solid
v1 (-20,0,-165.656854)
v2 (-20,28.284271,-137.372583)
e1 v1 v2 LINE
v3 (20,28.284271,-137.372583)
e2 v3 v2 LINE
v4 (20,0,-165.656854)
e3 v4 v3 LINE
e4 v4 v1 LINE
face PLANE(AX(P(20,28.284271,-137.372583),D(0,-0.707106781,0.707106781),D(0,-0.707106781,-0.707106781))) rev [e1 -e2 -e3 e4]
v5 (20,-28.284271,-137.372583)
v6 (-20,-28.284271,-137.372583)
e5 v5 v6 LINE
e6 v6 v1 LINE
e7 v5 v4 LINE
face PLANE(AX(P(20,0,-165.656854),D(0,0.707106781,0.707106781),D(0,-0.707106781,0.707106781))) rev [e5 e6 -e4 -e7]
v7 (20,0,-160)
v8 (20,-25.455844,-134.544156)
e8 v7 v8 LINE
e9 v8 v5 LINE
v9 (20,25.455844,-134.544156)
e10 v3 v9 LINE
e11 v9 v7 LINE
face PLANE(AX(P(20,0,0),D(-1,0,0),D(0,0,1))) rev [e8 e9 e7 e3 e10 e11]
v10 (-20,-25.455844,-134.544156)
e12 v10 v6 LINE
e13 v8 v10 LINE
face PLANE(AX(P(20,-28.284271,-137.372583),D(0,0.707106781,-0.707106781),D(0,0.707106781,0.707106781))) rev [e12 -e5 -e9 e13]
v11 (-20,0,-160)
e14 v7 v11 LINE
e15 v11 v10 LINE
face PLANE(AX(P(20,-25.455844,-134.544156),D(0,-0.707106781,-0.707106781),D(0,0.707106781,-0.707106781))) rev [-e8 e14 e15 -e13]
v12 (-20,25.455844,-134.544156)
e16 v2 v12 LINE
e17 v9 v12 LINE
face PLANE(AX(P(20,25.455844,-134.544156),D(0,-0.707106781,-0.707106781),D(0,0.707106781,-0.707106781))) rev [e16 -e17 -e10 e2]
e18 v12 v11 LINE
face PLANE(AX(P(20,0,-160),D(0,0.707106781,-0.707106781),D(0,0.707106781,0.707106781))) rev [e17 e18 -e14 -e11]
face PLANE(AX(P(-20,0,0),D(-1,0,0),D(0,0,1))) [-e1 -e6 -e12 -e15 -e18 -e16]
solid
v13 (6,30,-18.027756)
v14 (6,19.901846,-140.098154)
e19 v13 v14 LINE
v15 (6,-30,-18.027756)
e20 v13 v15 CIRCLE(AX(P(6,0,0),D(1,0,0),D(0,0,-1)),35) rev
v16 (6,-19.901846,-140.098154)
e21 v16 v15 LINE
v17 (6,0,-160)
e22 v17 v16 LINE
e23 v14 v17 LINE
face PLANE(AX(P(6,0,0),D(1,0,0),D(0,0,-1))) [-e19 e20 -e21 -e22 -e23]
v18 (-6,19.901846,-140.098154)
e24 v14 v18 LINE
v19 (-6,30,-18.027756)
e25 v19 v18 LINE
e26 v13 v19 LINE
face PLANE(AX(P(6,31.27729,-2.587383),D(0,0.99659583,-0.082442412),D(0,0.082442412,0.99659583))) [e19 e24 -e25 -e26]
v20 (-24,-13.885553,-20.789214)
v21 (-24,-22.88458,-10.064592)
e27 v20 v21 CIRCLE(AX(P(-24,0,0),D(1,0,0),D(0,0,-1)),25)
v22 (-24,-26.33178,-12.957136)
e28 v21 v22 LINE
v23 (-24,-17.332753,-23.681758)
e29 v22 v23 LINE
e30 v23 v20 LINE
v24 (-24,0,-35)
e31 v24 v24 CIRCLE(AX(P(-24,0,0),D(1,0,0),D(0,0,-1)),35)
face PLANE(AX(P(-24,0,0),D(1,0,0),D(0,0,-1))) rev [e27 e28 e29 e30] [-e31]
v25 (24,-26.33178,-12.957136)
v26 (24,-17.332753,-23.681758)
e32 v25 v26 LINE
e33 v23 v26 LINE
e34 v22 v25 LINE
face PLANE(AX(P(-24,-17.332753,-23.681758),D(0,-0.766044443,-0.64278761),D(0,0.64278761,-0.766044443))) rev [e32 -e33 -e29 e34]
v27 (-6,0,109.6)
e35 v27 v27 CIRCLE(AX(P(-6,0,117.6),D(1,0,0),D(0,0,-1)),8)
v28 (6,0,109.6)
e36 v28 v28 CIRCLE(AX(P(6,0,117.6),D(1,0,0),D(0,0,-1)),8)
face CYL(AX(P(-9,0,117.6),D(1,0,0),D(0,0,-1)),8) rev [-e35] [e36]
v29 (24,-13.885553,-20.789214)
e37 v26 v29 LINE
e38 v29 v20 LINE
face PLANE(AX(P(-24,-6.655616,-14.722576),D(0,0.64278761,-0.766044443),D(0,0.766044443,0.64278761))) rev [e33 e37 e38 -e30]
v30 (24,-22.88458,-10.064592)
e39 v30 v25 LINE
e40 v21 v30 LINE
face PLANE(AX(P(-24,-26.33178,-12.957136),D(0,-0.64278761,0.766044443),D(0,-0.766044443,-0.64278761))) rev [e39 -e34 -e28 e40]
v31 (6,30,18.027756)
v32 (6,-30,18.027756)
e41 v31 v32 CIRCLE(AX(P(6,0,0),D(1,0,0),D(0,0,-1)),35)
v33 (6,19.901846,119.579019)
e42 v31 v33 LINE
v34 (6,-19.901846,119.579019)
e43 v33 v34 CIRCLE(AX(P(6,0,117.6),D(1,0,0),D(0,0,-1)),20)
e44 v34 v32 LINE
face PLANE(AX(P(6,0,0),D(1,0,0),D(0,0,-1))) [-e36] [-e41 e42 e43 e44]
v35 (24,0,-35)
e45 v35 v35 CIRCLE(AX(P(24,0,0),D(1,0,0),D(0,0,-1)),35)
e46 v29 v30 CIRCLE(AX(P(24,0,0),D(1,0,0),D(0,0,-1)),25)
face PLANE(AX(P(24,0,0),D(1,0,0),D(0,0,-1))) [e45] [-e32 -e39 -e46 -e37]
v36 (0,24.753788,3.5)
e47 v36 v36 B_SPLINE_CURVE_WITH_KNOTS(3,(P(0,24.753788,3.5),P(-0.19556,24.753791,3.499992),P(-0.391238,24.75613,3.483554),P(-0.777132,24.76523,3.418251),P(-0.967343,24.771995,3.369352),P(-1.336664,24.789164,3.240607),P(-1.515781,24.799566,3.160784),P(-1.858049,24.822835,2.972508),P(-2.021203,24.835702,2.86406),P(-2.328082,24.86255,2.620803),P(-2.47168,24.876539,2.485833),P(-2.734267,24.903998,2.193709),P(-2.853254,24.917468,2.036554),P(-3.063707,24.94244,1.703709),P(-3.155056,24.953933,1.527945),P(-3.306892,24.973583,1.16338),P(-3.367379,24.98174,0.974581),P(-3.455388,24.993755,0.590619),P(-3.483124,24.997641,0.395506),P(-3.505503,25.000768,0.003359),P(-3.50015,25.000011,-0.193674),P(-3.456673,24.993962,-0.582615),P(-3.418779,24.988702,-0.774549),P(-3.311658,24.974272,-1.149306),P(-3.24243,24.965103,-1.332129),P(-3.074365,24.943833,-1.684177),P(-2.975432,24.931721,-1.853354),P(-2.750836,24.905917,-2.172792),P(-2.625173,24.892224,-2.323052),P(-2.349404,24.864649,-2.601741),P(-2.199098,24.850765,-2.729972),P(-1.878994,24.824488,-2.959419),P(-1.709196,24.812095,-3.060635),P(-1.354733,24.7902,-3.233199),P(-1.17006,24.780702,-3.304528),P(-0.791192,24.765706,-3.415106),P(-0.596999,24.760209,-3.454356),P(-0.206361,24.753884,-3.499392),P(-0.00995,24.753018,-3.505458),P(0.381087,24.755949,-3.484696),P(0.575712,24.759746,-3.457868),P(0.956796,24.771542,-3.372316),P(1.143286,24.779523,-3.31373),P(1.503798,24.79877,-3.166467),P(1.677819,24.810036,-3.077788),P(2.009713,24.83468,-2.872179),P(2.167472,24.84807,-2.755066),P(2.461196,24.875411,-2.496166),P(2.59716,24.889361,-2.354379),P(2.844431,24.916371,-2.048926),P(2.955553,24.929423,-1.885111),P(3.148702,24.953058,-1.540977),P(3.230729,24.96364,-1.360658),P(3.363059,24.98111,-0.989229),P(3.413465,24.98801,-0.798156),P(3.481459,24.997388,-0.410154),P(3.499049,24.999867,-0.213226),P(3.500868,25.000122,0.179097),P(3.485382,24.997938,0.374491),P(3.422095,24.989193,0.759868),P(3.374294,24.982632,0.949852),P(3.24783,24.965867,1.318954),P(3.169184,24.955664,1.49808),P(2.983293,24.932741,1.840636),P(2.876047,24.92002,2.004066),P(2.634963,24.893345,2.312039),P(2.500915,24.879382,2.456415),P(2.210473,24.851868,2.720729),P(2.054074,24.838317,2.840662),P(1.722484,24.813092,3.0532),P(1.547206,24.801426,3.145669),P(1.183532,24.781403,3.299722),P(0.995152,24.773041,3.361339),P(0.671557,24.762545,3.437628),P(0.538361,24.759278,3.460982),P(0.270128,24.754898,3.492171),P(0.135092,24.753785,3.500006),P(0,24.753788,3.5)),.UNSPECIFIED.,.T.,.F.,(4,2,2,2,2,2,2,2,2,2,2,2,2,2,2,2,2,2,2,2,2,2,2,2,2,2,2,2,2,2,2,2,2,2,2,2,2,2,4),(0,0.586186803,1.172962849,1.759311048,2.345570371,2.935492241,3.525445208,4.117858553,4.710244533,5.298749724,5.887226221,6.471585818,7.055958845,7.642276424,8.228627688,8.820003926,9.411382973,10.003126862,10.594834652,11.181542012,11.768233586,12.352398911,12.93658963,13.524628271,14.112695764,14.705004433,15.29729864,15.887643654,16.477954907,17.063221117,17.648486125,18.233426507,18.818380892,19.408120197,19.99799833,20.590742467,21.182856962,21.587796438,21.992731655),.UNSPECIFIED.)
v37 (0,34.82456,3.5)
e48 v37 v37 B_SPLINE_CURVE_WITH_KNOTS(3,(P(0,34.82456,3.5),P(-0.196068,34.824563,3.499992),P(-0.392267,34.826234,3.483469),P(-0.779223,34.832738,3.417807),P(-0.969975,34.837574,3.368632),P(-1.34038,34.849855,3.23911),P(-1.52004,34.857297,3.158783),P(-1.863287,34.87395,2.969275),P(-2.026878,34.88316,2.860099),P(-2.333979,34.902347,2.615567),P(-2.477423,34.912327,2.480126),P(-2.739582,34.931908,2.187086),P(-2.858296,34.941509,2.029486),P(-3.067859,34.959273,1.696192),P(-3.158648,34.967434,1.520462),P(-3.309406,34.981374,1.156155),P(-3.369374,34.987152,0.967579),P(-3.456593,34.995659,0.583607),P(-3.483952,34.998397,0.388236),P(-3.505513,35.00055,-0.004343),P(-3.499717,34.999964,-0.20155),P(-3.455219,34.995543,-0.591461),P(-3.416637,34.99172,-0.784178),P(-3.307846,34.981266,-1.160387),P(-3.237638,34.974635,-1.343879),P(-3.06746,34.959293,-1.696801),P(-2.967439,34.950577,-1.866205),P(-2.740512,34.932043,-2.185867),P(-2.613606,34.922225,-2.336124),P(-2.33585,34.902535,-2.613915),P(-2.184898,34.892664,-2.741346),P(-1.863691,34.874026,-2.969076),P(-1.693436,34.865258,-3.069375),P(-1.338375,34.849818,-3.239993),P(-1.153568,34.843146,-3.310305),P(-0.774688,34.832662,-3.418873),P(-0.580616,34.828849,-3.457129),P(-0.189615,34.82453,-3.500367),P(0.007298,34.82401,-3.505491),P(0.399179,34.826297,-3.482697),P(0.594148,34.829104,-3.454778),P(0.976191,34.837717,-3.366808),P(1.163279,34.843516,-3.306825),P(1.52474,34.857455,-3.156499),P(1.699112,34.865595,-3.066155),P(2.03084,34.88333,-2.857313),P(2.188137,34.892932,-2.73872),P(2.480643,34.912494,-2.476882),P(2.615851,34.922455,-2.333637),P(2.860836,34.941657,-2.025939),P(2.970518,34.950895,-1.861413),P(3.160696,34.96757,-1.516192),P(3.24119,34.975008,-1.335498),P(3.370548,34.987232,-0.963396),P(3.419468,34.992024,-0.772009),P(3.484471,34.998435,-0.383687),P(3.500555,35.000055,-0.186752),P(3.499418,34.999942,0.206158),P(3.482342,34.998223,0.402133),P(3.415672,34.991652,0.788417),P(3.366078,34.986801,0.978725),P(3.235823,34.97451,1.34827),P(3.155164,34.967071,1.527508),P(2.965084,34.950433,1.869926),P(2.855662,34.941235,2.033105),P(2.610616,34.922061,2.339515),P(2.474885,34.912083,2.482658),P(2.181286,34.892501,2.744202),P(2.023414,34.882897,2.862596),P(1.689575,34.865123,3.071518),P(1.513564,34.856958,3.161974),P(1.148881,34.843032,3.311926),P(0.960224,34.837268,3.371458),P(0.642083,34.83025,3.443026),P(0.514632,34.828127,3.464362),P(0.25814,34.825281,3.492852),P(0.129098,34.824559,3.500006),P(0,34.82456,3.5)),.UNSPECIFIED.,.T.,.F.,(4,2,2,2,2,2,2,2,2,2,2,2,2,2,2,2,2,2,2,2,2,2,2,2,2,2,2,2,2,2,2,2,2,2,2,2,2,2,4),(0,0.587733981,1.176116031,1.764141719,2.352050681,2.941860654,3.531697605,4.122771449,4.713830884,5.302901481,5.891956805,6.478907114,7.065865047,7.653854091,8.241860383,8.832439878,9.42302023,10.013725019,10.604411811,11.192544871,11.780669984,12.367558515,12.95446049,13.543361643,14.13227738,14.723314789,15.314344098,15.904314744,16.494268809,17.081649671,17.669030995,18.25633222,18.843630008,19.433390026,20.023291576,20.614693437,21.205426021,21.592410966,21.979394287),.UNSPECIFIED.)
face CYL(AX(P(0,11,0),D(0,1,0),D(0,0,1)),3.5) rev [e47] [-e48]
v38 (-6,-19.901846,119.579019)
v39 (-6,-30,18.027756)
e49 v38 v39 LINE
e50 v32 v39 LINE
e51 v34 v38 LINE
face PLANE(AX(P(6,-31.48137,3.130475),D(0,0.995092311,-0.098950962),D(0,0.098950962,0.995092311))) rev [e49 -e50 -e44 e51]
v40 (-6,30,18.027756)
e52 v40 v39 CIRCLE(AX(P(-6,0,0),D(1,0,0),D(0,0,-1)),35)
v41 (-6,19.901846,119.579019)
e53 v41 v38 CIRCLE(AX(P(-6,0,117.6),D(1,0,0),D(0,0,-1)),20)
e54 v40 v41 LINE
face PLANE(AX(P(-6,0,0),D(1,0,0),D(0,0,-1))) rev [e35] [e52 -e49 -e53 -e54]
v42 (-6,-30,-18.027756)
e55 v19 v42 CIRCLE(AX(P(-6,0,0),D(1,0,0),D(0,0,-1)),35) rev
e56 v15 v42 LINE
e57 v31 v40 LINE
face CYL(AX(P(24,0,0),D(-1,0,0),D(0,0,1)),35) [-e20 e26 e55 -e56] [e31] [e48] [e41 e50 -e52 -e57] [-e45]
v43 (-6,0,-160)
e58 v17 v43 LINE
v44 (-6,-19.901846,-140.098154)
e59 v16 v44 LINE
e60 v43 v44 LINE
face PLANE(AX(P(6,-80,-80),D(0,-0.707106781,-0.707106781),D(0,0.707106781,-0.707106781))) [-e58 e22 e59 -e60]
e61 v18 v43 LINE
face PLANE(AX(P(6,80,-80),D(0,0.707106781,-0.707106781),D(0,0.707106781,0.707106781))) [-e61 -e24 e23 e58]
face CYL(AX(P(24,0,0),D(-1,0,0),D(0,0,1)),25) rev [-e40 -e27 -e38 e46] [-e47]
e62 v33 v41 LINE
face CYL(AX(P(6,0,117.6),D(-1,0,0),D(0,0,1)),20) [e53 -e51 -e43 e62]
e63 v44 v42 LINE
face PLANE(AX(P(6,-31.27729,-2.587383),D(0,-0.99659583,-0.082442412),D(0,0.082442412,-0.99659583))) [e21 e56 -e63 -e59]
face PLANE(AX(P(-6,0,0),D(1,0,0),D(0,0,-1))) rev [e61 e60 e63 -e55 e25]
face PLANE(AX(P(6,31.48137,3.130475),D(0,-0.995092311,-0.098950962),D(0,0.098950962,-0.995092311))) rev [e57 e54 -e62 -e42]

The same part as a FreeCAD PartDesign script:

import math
import FreeCAD as App
import Part
import Sketcher
Q = App.Units.Quantity


def add_polygon(sketch, points):
    """Adds a closed chain of lines whose ends are joined by coincident constraints."""
    first, n = sketch.GeometryCount, len(points)
    for a, b in zip(points, points[1:] + points[:1]):
        sketch.addGeometry(Part.LineSegment(App.Vector(*a, 0), App.Vector(*b, 0)), False)
    for i in range(n):
        sketch.addConstraint(Sketcher.Constraint("Coincident", first + i, 2, first + (i + 1) % n, 1))

doc = App.newDocument("Part")
params = doc.addObject("Spreadsheet::Sheet", "Params")
for row, (alias, value) in enumerate([
    ("sketch1_diameter", "70 mm"),
    ("sketch1_diameter2", "50 mm"),
    ("pad1_length", "48 mm"),
    ("sketch2_radius", "35 mm"),
    ("sketch2_radius2", "20 mm"),
    ("pad2_length", "12 mm"),
    ("sketch3_diameter", "16 mm"),
    ("pocket1_length", "15 mm"),
    ("sketch4_length", "14 mm"),
    ("sketch5_diameter", "7 mm"),
    ("pocket3_length", "24 mm"),
    ("sketch6_length", "36 mm"),
    ("sketch6_length2", "4 mm"),
    ("pad3_length", "40 mm"),
], start=1):
    params.set(f"A{row}", alias)
    params.set(f"B{row}", "=" + value)
    params.setAlias(f"B{row}", alias)

body = doc.addObject("PartDesign::Body", "Body")

sketch1 = body.newObject("Sketcher::SketchObject", "Sketch")
sketch1.AttachmentSupport = (doc.getObject("YZ_Plane"), [""])
sketch1.MapMode = "FlatFace"
sketch1.addGeometry([
    Part.Circle(App.Vector(0, 0, 0), App.Vector(0, 0, 1), 35),
    Part.Circle(App.Vector(0, 0, 0), App.Vector(0, 0, 1), 25),
], False)
sketch1.addConstraint([
    Sketcher.Constraint("Coincident", 0, 3, -1, 1),
    Sketcher.Constraint("Coincident", 1, 3, -1, 1),
    Sketcher.Constraint("Diameter", 0, Q("70 mm")),
    Sketcher.Constraint("Diameter", 1, Q("50 mm")),
])
sketch1.setExpression("Constraints[2]", "Params.sketch1_diameter")
sketch1.setExpression("Constraints[3]", "Params.sketch1_diameter2")
pad1 = body.newObject("PartDesign::Pad", "Pad")
pad1.Profile = sketch1
pad1.setExpression("Length", "Params.pad1_length")
pad1.Midplane = True

sketch2 = body.newObject("Sketcher::SketchObject", "Sketch001")
sketch2.AttachmentSupport = (doc.getObject("YZ_Plane"), [""])
sketch2.MapMode = "FlatFace"
sketch2.addGeometry([
    Part.ArcOfCircle(Part.Circle(App.Vector(0, 0, 0), App.Vector(0, 0, 1), 35), math.radians(31), math.radians(149)),
    Part.LineSegment(App.Vector(30, 18, 0), App.Vector(20, 120, 0)),
    Part.ArcOfCircle(Part.Circle(App.Vector(0, 118, 0), App.Vector(0, 0, 1), 20), math.radians(6), math.radians(174)),
    Part.LineSegment(App.Vector(-20, 120, 0), App.Vector(-30, 18, 0)),
    Part.LineSegment(App.Vector(20, -140, 0), App.Vector(30, -18, 0)),
    Part.ArcOfCircle(Part.Circle(App.Vector(0, 0, 0), App.Vector(0, 0, 1), 35), math.radians(-149), math.radians(-31)),
    Part.LineSegment(App.Vector(-30, -18, 0), App.Vector(-20, -140, 0)),
    Part.LineSegment(App.Vector(-20, -140, 0), App.Vector(0, -160, 0)),
    Part.LineSegment(App.Vector(0, -160, 0), App.Vector(20, -140, 0)),
], False)
sketch2.addConstraint([
    Sketcher.Constraint("Coincident", 0, 1, 1, 1),
    Sketcher.Constraint("Tangent", 1, 2, 2, 1),
    Sketcher.Constraint("Tangent", 2, 2, 3, 1),
    Sketcher.Constraint("Coincident", 3, 2, 0, 2),
    Sketcher.Constraint("Coincident", 4, 2, 5, 2),
    Sketcher.Constraint("Coincident", 5, 1, 6, 1),
    Sketcher.Constraint("Coincident", 6, 2, 7, 1),
    Sketcher.Constraint("Coincident", 7, 2, 8, 1),
    Sketcher.Constraint("Coincident", 8, 2, 4, 1),
    Sketcher.Constraint("Coincident", 0, 3, -1, 1),
    Sketcher.Constraint("Coincident", 5, 3, -1, 1),
    Sketcher.Constraint("Equal", 0, 5),
    Sketcher.Constraint("Symmetric", 1, 2, 2, 2, -2),
    Sketcher.Constraint("Symmetric", 6, 2, 8, 2, -2),
    Sketcher.Constraint("PointOnObject", 7, 2, -2),
    Sketcher.Constraint("Perpendicular", 7, 8),
    Sketcher.Constraint("Horizontal", 4, 2, 5, 1),
    Sketcher.Constraint("Vertical", 0, 1, 4, 2),
    Sketcher.Constraint("Vertical", 2, 2, 6, 2),
    Sketcher.Constraint("Radius", 0, Q("35 mm")),
    Sketcher.Constraint("Radius", 2, Q("20 mm")),
    Sketcher.Constraint("DistanceX", -1, 1, 0, 1, Q("30 mm")),
    Sketcher.Constraint("DistanceY", 7, 2, -1, 1, Q("160 mm")),
    Sketcher.Constraint("DistanceY", -1, 1, 2, 3, Q("117.6 mm")),
])
sketch2.setExpression("Constraints[19]", "Params.sketch2_radius")
sketch2.setExpression("Constraints[20]", "Params.sketch2_radius2")
pad2 = body.newObject("PartDesign::Pad", "Pad001")
pad2.Profile = sketch2
pad2.setExpression("Length", "Params.pad2_length")
pad2.Midplane = True

sketch3 = body.newObject("Sketcher::SketchObject", "Sketch002")
sketch3.AttachmentSupport = (doc.getObject("YZ_Plane"), [""])
sketch3.MapMode = "FlatFace"
sketch3.AttachmentOffset = App.Placement(App.Vector(0, 0, 6), App.Rotation())
sketch3.addGeometry(Part.Circle(App.Vector(0, 118, 0), App.Vector(0, 0, 1), 8), False)
sketch3.addConstraint([
    Sketcher.Constraint("PointOnObject", 0, 3, -2),
    Sketcher.Constraint("Diameter", 0, Q("16 mm")),
    Sketcher.Constraint("DistanceY", -1, 1, 0, 3, Q("117.6 mm")),
])
sketch3.setExpression("Constraints[1]", "Params.sketch3_diameter")
pocket1 = body.newObject("PartDesign::Pocket", "Pocket")
pocket1.Profile = sketch3
pocket1.setExpression("Length", "Params.pocket1_length")

sketch4 = body.newObject("Sketcher::SketchObject", "Sketch003")
sketch4.AttachmentSupport = (doc.getObject("YZ_Plane"), [""])
sketch4.MapMode = "FlatFace"
sketch4.AttachmentOffset = App.Placement(App.Vector(0, 0, 24), App.Rotation())
add_polygon(sketch4, [(-26, -13), (-17, -24), (-7, -15), (-16, -4)])
sketch4.addConstraint([
    Sketcher.Constraint("Perpendicular", 0, 1),
    Sketcher.Constraint("Perpendicular", 1, 2),
    Sketcher.Constraint("Perpendicular", 2, 3),
    Sketcher.Constraint("Angle", 0, Q("-50 deg")),
    Sketcher.Constraint("Distance", 0, Q("14 mm")),
    Sketcher.Constraint("DistanceX", 3, 2, -1, 1, Q("26.33178 mm")),
    Sketcher.Constraint("DistanceX", 0, 2, 2, 2, Q("1.678111 mm")),
    Sketcher.Constraint("DistanceY", 0, 2, -1, 1, Q("23.681758 mm")),
])
sketch4.setExpression("Constraints[8]", "Params.sketch4_length")
pocket2 = body.newObject("PartDesign::Pocket", "Pocket001")
pocket2.Profile = sketch4
pocket2.Type = "ThroughAll"

sketch5 = body.newObject("Sketcher::SketchObject", "Sketch004")
sketch5.AttachmentSupport = (doc.getObject("XZ_Plane"), [""])
sketch5.MapMode = "FlatFace"
sketch5.AttachmentOffset = App.Placement(App.Vector(0, 0, -35), App.Rotation())
sketch5.addGeometry(Part.Circle(App.Vector(0, 0, 0), App.Vector(0, 0, 1), 3.5), False)
sketch5.addConstraint([
    Sketcher.Constraint("Coincident", 0, 3, -1, 1),
    Sketcher.Constraint("Diameter", 0, Q("7 mm")),
])
sketch5.setExpression("Constraints[1]", "Params.sketch5_diameter")
pocket3 = body.newObject("PartDesign::Pocket", "Pocket002")
pocket3.Profile = sketch5
pocket3.setExpression("Length", "Params.pocket3_length")
pocket3.Reversed = True
body2 = doc.addObject("PartDesign::Body", "Body001")

sketch6 = body2.newObject("Sketcher::SketchObject", "Sketch005")
sketch6.AttachmentSupport = (doc.getObject("YZ_Plane001"), [""])
sketch6.MapMode = "FlatFace"
add_polygon(sketch6, [(0, -160), (-25.5, -134.5), (-28.3, -137.4), (0, -165.7), (28.3, -137.4), (25.5, -134.5)])
sketch6.addConstraint([
    Sketcher.Constraint("Symmetric", 1, 2, 3, 2, -2),
    Sketcher.Constraint("Symmetric", 0, 2, 4, 2, -2),
    Sketcher.Constraint("PointOnObject", 2, 2, -2),
    Sketcher.Constraint("PointOnObject", 5, 2, -2),
    Sketcher.Constraint("Perpendicular", 0, 1),
    Sketcher.Constraint("Perpendicular", 1, 2),
    Sketcher.Constraint("Perpendicular", 2, 3),
    Sketcher.Constraint("Distance", 0, Q("36 mm")),
    Sketcher.Constraint("Distance", 1, Q("4 mm")),
    Sketcher.Constraint("DistanceY", 5, 2, -1, 1, Q("160 mm")),
])
sketch6.setExpression("Constraints[13]", "Params.sketch6_length")
sketch6.setExpression("Constraints[14]", "Params.sketch6_length2")
pad3 = body2.newObject("PartDesign::Pad", "Pad002")
pad3.Profile = sketch6
pad3.setExpression("Length", "Params.pad3_length")
pad3.Midplane = True

doc.recompute()
